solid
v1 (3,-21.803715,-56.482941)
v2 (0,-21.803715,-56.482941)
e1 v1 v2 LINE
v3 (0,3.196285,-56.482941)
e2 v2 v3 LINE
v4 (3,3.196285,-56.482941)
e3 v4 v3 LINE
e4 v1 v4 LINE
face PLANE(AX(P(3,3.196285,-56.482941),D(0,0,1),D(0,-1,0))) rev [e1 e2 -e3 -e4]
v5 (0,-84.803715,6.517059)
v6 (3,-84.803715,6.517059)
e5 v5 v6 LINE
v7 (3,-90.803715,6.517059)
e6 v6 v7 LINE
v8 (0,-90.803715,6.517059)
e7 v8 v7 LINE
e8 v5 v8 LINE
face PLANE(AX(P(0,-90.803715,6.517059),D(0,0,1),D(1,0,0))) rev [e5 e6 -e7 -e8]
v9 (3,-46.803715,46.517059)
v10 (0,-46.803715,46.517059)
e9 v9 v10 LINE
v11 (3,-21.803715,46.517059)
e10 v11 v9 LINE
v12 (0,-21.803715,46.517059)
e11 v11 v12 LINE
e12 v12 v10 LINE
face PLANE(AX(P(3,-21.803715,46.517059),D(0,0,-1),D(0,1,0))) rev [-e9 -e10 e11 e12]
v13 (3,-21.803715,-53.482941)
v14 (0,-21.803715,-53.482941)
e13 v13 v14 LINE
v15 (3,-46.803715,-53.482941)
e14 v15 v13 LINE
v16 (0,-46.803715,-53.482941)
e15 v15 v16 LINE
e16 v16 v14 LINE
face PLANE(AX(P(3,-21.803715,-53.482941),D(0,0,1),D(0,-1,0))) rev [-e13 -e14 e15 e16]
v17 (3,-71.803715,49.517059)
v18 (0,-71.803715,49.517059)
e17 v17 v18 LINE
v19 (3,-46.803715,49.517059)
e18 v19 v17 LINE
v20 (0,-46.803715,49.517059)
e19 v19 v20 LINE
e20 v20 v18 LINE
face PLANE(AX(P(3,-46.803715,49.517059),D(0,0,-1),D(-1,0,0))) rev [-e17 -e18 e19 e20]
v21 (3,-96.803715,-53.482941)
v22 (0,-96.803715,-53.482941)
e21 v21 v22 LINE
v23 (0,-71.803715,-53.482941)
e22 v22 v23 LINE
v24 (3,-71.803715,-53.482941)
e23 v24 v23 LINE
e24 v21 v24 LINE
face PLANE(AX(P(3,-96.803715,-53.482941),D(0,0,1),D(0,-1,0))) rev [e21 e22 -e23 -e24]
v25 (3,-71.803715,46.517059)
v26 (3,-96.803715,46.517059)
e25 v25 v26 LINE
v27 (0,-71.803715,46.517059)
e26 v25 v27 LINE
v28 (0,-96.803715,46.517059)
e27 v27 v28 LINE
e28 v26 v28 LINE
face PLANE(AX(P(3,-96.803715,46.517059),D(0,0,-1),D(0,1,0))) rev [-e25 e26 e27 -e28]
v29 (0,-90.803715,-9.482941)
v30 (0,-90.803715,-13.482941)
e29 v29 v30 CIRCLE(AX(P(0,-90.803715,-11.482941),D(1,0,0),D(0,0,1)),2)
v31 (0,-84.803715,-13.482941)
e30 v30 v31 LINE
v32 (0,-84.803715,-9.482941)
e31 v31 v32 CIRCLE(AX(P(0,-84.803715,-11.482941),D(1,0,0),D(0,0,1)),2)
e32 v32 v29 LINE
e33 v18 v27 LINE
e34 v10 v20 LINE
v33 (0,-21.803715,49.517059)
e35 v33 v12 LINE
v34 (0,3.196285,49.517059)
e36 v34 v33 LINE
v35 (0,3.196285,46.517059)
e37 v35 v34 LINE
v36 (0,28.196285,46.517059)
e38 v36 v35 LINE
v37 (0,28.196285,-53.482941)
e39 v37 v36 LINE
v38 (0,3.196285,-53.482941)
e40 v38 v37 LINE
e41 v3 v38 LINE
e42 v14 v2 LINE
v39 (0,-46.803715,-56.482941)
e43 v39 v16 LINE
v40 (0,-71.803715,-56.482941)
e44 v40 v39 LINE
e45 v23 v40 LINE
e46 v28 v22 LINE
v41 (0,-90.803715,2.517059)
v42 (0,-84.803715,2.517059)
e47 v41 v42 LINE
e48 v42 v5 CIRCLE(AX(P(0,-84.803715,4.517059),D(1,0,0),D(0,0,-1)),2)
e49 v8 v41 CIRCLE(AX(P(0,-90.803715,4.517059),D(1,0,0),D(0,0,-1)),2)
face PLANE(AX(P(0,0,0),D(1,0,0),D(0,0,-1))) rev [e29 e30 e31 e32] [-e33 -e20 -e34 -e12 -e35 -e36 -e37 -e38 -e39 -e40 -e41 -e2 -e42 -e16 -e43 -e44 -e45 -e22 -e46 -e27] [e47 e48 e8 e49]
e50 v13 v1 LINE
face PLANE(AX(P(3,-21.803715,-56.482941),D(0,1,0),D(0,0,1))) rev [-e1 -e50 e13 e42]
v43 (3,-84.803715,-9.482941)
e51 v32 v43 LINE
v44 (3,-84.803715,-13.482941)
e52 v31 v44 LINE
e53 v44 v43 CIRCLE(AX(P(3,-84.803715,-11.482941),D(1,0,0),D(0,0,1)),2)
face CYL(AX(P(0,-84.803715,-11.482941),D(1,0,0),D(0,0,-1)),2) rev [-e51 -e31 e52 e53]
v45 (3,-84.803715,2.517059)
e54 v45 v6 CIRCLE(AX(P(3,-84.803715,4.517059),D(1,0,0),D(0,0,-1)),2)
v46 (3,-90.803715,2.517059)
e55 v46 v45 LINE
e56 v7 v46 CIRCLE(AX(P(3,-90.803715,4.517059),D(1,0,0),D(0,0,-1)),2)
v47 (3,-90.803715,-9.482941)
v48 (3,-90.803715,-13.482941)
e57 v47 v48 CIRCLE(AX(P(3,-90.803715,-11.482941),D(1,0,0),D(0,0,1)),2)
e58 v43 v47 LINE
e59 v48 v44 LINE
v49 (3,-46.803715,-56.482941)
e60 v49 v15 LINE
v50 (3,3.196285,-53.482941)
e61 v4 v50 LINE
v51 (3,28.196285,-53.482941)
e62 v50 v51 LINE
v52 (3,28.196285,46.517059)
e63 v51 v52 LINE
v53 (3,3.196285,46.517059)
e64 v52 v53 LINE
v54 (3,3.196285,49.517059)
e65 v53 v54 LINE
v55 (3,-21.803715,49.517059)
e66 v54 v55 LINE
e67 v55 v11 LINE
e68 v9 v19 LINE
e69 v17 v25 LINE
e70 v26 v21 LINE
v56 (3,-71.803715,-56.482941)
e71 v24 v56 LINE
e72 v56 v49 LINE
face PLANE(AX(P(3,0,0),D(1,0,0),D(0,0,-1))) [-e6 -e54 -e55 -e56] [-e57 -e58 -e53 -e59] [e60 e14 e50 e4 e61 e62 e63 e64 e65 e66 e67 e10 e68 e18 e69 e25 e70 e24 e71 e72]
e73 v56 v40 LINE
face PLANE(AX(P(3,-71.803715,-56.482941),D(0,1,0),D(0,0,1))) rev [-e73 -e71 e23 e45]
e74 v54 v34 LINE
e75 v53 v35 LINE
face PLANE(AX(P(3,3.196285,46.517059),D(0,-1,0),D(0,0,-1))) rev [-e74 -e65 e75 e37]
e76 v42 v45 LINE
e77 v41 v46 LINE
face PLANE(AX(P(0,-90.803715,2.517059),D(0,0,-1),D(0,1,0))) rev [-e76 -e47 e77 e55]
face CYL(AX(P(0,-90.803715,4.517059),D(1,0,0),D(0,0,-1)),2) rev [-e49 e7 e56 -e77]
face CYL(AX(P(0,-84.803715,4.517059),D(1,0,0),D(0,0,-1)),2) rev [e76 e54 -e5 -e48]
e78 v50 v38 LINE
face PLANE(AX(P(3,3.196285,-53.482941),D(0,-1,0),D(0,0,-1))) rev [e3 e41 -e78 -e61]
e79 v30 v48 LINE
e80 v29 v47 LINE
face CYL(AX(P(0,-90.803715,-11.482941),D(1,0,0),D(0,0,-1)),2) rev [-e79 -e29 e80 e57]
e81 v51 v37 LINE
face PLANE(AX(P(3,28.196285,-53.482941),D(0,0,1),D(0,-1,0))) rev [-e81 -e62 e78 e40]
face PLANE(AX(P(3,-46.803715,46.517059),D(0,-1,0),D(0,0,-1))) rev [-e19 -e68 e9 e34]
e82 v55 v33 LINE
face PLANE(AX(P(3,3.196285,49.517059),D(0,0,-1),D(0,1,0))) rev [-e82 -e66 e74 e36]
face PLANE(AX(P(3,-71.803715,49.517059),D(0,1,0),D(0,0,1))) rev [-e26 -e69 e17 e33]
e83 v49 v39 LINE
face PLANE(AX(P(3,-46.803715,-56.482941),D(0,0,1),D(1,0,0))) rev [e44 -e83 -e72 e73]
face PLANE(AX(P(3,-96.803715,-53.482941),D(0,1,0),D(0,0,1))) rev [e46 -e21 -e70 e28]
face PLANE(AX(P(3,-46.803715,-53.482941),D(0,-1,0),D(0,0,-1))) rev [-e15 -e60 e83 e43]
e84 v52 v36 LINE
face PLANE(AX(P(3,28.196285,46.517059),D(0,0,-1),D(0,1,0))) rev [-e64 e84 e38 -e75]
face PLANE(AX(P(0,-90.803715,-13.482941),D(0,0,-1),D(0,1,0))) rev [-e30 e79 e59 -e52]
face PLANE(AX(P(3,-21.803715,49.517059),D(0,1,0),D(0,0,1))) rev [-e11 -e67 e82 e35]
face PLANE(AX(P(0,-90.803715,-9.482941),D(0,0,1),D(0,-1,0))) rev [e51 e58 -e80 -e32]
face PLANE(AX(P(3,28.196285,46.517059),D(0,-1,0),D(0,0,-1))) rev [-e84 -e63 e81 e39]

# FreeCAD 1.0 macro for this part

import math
import FreeCAD as App
import Part
import Sketcher

V = App.Vector

doc = App.newDocument("Part")
body = doc.addObject("PartDesign::Body", "Body")

sketch1 = doc.addObject("Sketcher::SketchObject", "Sketch")
body.addObject(sketch1)
sketch1.AttachmentSupport = (doc.YZ_Plane, [""])
sketch1.MapMode = "FlatFace"
sketch1.addGeometry([
    Part.LineSegment(V(28.196285, -53.482941, 0), V(28.196285, 46.517059, 0)),
    Part.LineSegment(V(28.196285, 46.517059, 0), V(3.196285, 46.517059, 0)),
    Part.LineSegment(V(3.196285, 46.517059, 0), V(3.196285, 49.517059, 0)),
    Part.LineSegment(V(3.196285, 49.517059, 0), V(-21.803715, 49.517059, 0)),
    Part.LineSegment(V(-21.803715, 49.517059, 0), V(-21.803715, 46.517059, 0)),
    Part.LineSegment(V(-21.803715, 46.517059, 0), V(-46.803715, 46.517059, 0)),
    Part.LineSegment(V(-46.803715, 46.517059, 0), V(-46.803715, 49.517059, 0)),
    Part.LineSegment(V(-46.803715, 49.517059, 0), V(-71.803715, 49.517059, 0)),
    Part.LineSegment(V(-71.803715, 49.517059, 0), V(-71.803715, 46.517059, 0)),
    Part.LineSegment(V(-71.803715, 46.517059, 0), V(-96.803715, 46.517059, 0)),
    Part.LineSegment(V(-96.803715, 46.517059, 0), V(-96.803715, -53.482941, 0)),
    Part.LineSegment(V(-96.803715, -53.482941, 0), V(-71.803715, -53.482941, 0)),
    Part.LineSegment(V(-71.803715, -53.482941, 0), V(-71.803715, -56.482941, 0)),
    Part.LineSegment(V(-71.803715, -56.482941, 0), V(-46.803715, -56.482941, 0)),
    Part.LineSegment(V(-46.803715, -56.482941, 0), V(-46.803715, -53.482941, 0)),
    Part.LineSegment(V(-46.803715, -53.482941, 0), V(-21.803715, -53.482941, 0)),
    Part.LineSegment(V(-21.803715, -53.482941, 0), V(-21.803715, -56.482941, 0)),
    Part.LineSegment(V(-21.803715, -56.482941, 0), V(3.196285, -56.482941, 0)),
    Part.LineSegment(V(3.196285, -56.482941, 0), V(3.196285, -53.482941, 0)),
    Part.LineSegment(V(3.196285, -53.482941, 0), V(28.196285, -53.482941, 0)),
], False)
sketch1.addConstraint([
    Sketcher.Constraint("Coincident", 0, 2, 1, 1),
    Sketcher.Constraint("Coincident", 1, 2, 2, 1),
    Sketcher.Constraint("Coincident", 2, 2, 3, 1),
    Sketcher.Constraint("Coincident", 3, 2, 4, 1),
    Sketcher.Constraint("Coincident", 4, 2, 5, 1),
    Sketcher.Constraint("Coincident", 5, 2, 6, 1),
    Sketcher.Constraint("Coincident", 6, 2, 7, 1),
    Sketcher.Constraint("Coincident", 7, 2, 8, 1),
    Sketcher.Constraint("Coincident", 8, 2, 9, 1),
    Sketcher.Constraint("Coincident", 9, 2, 10, 1),
    Sketcher.Constraint("Coincident", 10, 2, 11, 1),
    Sketcher.Constraint("Coincident", 11, 2, 12, 1),
    Sketcher.Constraint("Coincident", 12, 2, 13, 1),
    Sketcher.Constraint("Coincident", 13, 2, 14, 1),
    Sketcher.Constraint("Coincident", 14, 2, 15, 1),
    Sketcher.Constraint("Coincident", 15, 2, 16, 1),
    Sketcher.Constraint("Coincident", 16, 2, 17, 1),
    Sketcher.Constraint("Coincident", 17, 2, 18, 1),
    Sketcher.Constraint("Coincident", 18, 2, 19, 1),
    Sketcher.Constraint("Coincident", 19, 2, 0, 1),
    Sketcher.Constraint("Vertical", 0),
    Sketcher.Constraint("Horizontal", 1),
    Sketcher.Constraint("Vertical", 2),
    Sketcher.Constraint("Horizontal", 3),
    Sketcher.Constraint("Vertical", 4),
    Sketcher.Constraint("Horizontal", 5),
    Sketcher.Constraint("Vertical", 6),
    Sketcher.Constraint("Horizontal", 7),
    Sketcher.Constraint("Vertical", 8),
    Sketcher.Constraint("Horizontal", 9),
    Sketcher.Constraint("Vertical", 10),
    Sketcher.Constraint("Horizontal", 11),
    Sketcher.Constraint("Vertical", 12),
    Sketcher.Constraint("Horizontal", 13),
    Sketcher.Constraint("Vertical", 14),
    Sketcher.Constraint("Horizontal", 15),
    Sketcher.Constraint("Vertical", 16),
    Sketcher.Constraint("Horizontal", 17),
    Sketcher.Constraint("Vertical", 18),
    Sketcher.Constraint("Horizontal", 19),
    Sketcher.Constraint("Horizontal", 1, 2, 4, 2),
    Sketcher.Constraint("Horizontal", 3, 2, 6, 2),
    Sketcher.Constraint("Horizontal", 5, 2, 8, 2),
    Sketcher.Constraint("Horizontal", 11, 2, 14, 2),
    Sketcher.Constraint("Horizontal", 13, 2, 16, 2),
    Sketcher.Constraint("Horizontal", 15, 2, 18, 2),
    Sketcher.Constraint("Vertical", 8, 2, 11, 2),
    Sketcher.Constraint("Vertical", 6, 2, 13, 2),
    Sketcher.Constraint("Vertical", 4, 2, 15, 2),
    Sketcher.Constraint("Vertical", 2, 2, 17, 2),
    Sketcher.Constraint("Equal", 1, 3),
    Sketcher.Constraint("Equal", 3, 5),
    Sketcher.Constraint("Equal", 5, 7),
    Sketcher.Constraint("Equal", 7, 9),
    Sketcher.Constraint("Equal", 8, 12),
    Sketcher.Constraint("DistanceX", 1, 2, 1, 1, 25.0),
    Sketcher.Constraint("DistanceY", 0, 1, 0, 2, 100.0),
    Sketcher.Constraint("DistanceY", 2, 1, 2, 2, 3.0),
    Sketcher.Constraint("DistanceY", -1, 1, 0, 2, 46.517059),
    Sketcher.Constraint("DistanceX", -1, 1, 0, 2, 28.196285),
])
pad1 = doc.addObject("PartDesign::Pad", "Pad")
body.addObject(pad1)
pad1.Profile = sketch1
pad1.Length = 3

sketch2 = doc.addObject("Sketcher::SketchObject", "Sketch001")
body.addObject(sketch2)
sketch2.AttachmentSupport = (doc.YZ_Plane, [""])
sketch2.MapMode = "FlatFace"
sketch2.AttachmentOffset = App.Placement(V(0, 0, 3), App.Rotation())
sketch2.addGeometry([
    Part.LineSegment(V(-84.803715, 6.517059, 0), V(-90.803715, 6.517059, 0)),
    Part.ArcOfCircle(Part.Circle(V(-90.803715, 4.517059, 0), V(0, 0, 1), 2), math.radians(90), math.radians(270)),
    Part.LineSegment(V(-90.803715, 2.517059, 0), V(-84.803715, 2.517059, 0)),
    Part.ArcOfCircle(Part.Circle(V(-84.803715, 4.517059, 0), V(0, 0, 1), 2), math.radians(-90), math.radians(90)),
    Part.LineSegment(V(-90.803715, -13.482941, 0), V(-84.803715, -13.482941, 0)),
    Part.ArcOfCircle(Part.Circle(V(-84.803715, -11.482941, 0), V(0, 0, 1), 2), math.radians(-90), math.radians(90)),
    Part.LineSegment(V(-84.803715, -9.482941, 0), V(-90.803715, -9.482941, 0)),
    Part.ArcOfCircle(Part.Circle(V(-90.803715, -11.482941, 0), V(0, 0, 1), 2), math.radians(90), math.radians(270)),
], False)
sketch2.addConstraint([
    Sketcher.Constraint("Tangent", 0, 2, 1, 1),
    Sketcher.Constraint("Tangent", 1, 2, 2, 1),
    Sketcher.Constraint("Tangent", 2, 2, 3, 1),
    Sketcher.Constraint("Tangent", 3, 2, 0, 1),
    Sketcher.Constraint("Tangent", 4, 2, 5, 1),
    Sketcher.Constraint("Tangent", 5, 2, 6, 1),
    Sketcher.Constraint("Tangent", 6, 2, 7, 1),
    Sketcher.Constraint("Tangent", 7, 2, 4, 1),
    Sketcher.Constraint("Horizontal", 0),
    Sketcher.Constraint("Horizontal", 2),
    Sketcher.Constraint("Horizontal", 4),
    Sketcher.Constraint("Horizontal", 6),
    Sketcher.Constraint("Equal", 3, 5),
    Sketcher.Constraint("Vertical", 3, 3, 5, 3),
    Sketcher.Constraint("Vertical", 1, 3, 7, 3),
    Sketcher.Constraint("Radius", 1, 2.0),
    Sketcher.Constraint("DistanceX", 0, 2, 0, 1, 6.0),
    Sketcher.Constraint("DistanceY", 5, 3, 3, 3, 16.0),
    Sketcher.Constraint("DistanceY", -1, 1, 1, 3, 4.517059),
    Sketcher.Constraint("DistanceX", 1, 3, -1, 1, 90.803715),
])
pocket1 = doc.addObject("PartDesign::Pocket", "Pocket")
body.addObject(pocket1)
pocket1.Profile = sketch2
pocket1.Length = 3

doc.recompute()
